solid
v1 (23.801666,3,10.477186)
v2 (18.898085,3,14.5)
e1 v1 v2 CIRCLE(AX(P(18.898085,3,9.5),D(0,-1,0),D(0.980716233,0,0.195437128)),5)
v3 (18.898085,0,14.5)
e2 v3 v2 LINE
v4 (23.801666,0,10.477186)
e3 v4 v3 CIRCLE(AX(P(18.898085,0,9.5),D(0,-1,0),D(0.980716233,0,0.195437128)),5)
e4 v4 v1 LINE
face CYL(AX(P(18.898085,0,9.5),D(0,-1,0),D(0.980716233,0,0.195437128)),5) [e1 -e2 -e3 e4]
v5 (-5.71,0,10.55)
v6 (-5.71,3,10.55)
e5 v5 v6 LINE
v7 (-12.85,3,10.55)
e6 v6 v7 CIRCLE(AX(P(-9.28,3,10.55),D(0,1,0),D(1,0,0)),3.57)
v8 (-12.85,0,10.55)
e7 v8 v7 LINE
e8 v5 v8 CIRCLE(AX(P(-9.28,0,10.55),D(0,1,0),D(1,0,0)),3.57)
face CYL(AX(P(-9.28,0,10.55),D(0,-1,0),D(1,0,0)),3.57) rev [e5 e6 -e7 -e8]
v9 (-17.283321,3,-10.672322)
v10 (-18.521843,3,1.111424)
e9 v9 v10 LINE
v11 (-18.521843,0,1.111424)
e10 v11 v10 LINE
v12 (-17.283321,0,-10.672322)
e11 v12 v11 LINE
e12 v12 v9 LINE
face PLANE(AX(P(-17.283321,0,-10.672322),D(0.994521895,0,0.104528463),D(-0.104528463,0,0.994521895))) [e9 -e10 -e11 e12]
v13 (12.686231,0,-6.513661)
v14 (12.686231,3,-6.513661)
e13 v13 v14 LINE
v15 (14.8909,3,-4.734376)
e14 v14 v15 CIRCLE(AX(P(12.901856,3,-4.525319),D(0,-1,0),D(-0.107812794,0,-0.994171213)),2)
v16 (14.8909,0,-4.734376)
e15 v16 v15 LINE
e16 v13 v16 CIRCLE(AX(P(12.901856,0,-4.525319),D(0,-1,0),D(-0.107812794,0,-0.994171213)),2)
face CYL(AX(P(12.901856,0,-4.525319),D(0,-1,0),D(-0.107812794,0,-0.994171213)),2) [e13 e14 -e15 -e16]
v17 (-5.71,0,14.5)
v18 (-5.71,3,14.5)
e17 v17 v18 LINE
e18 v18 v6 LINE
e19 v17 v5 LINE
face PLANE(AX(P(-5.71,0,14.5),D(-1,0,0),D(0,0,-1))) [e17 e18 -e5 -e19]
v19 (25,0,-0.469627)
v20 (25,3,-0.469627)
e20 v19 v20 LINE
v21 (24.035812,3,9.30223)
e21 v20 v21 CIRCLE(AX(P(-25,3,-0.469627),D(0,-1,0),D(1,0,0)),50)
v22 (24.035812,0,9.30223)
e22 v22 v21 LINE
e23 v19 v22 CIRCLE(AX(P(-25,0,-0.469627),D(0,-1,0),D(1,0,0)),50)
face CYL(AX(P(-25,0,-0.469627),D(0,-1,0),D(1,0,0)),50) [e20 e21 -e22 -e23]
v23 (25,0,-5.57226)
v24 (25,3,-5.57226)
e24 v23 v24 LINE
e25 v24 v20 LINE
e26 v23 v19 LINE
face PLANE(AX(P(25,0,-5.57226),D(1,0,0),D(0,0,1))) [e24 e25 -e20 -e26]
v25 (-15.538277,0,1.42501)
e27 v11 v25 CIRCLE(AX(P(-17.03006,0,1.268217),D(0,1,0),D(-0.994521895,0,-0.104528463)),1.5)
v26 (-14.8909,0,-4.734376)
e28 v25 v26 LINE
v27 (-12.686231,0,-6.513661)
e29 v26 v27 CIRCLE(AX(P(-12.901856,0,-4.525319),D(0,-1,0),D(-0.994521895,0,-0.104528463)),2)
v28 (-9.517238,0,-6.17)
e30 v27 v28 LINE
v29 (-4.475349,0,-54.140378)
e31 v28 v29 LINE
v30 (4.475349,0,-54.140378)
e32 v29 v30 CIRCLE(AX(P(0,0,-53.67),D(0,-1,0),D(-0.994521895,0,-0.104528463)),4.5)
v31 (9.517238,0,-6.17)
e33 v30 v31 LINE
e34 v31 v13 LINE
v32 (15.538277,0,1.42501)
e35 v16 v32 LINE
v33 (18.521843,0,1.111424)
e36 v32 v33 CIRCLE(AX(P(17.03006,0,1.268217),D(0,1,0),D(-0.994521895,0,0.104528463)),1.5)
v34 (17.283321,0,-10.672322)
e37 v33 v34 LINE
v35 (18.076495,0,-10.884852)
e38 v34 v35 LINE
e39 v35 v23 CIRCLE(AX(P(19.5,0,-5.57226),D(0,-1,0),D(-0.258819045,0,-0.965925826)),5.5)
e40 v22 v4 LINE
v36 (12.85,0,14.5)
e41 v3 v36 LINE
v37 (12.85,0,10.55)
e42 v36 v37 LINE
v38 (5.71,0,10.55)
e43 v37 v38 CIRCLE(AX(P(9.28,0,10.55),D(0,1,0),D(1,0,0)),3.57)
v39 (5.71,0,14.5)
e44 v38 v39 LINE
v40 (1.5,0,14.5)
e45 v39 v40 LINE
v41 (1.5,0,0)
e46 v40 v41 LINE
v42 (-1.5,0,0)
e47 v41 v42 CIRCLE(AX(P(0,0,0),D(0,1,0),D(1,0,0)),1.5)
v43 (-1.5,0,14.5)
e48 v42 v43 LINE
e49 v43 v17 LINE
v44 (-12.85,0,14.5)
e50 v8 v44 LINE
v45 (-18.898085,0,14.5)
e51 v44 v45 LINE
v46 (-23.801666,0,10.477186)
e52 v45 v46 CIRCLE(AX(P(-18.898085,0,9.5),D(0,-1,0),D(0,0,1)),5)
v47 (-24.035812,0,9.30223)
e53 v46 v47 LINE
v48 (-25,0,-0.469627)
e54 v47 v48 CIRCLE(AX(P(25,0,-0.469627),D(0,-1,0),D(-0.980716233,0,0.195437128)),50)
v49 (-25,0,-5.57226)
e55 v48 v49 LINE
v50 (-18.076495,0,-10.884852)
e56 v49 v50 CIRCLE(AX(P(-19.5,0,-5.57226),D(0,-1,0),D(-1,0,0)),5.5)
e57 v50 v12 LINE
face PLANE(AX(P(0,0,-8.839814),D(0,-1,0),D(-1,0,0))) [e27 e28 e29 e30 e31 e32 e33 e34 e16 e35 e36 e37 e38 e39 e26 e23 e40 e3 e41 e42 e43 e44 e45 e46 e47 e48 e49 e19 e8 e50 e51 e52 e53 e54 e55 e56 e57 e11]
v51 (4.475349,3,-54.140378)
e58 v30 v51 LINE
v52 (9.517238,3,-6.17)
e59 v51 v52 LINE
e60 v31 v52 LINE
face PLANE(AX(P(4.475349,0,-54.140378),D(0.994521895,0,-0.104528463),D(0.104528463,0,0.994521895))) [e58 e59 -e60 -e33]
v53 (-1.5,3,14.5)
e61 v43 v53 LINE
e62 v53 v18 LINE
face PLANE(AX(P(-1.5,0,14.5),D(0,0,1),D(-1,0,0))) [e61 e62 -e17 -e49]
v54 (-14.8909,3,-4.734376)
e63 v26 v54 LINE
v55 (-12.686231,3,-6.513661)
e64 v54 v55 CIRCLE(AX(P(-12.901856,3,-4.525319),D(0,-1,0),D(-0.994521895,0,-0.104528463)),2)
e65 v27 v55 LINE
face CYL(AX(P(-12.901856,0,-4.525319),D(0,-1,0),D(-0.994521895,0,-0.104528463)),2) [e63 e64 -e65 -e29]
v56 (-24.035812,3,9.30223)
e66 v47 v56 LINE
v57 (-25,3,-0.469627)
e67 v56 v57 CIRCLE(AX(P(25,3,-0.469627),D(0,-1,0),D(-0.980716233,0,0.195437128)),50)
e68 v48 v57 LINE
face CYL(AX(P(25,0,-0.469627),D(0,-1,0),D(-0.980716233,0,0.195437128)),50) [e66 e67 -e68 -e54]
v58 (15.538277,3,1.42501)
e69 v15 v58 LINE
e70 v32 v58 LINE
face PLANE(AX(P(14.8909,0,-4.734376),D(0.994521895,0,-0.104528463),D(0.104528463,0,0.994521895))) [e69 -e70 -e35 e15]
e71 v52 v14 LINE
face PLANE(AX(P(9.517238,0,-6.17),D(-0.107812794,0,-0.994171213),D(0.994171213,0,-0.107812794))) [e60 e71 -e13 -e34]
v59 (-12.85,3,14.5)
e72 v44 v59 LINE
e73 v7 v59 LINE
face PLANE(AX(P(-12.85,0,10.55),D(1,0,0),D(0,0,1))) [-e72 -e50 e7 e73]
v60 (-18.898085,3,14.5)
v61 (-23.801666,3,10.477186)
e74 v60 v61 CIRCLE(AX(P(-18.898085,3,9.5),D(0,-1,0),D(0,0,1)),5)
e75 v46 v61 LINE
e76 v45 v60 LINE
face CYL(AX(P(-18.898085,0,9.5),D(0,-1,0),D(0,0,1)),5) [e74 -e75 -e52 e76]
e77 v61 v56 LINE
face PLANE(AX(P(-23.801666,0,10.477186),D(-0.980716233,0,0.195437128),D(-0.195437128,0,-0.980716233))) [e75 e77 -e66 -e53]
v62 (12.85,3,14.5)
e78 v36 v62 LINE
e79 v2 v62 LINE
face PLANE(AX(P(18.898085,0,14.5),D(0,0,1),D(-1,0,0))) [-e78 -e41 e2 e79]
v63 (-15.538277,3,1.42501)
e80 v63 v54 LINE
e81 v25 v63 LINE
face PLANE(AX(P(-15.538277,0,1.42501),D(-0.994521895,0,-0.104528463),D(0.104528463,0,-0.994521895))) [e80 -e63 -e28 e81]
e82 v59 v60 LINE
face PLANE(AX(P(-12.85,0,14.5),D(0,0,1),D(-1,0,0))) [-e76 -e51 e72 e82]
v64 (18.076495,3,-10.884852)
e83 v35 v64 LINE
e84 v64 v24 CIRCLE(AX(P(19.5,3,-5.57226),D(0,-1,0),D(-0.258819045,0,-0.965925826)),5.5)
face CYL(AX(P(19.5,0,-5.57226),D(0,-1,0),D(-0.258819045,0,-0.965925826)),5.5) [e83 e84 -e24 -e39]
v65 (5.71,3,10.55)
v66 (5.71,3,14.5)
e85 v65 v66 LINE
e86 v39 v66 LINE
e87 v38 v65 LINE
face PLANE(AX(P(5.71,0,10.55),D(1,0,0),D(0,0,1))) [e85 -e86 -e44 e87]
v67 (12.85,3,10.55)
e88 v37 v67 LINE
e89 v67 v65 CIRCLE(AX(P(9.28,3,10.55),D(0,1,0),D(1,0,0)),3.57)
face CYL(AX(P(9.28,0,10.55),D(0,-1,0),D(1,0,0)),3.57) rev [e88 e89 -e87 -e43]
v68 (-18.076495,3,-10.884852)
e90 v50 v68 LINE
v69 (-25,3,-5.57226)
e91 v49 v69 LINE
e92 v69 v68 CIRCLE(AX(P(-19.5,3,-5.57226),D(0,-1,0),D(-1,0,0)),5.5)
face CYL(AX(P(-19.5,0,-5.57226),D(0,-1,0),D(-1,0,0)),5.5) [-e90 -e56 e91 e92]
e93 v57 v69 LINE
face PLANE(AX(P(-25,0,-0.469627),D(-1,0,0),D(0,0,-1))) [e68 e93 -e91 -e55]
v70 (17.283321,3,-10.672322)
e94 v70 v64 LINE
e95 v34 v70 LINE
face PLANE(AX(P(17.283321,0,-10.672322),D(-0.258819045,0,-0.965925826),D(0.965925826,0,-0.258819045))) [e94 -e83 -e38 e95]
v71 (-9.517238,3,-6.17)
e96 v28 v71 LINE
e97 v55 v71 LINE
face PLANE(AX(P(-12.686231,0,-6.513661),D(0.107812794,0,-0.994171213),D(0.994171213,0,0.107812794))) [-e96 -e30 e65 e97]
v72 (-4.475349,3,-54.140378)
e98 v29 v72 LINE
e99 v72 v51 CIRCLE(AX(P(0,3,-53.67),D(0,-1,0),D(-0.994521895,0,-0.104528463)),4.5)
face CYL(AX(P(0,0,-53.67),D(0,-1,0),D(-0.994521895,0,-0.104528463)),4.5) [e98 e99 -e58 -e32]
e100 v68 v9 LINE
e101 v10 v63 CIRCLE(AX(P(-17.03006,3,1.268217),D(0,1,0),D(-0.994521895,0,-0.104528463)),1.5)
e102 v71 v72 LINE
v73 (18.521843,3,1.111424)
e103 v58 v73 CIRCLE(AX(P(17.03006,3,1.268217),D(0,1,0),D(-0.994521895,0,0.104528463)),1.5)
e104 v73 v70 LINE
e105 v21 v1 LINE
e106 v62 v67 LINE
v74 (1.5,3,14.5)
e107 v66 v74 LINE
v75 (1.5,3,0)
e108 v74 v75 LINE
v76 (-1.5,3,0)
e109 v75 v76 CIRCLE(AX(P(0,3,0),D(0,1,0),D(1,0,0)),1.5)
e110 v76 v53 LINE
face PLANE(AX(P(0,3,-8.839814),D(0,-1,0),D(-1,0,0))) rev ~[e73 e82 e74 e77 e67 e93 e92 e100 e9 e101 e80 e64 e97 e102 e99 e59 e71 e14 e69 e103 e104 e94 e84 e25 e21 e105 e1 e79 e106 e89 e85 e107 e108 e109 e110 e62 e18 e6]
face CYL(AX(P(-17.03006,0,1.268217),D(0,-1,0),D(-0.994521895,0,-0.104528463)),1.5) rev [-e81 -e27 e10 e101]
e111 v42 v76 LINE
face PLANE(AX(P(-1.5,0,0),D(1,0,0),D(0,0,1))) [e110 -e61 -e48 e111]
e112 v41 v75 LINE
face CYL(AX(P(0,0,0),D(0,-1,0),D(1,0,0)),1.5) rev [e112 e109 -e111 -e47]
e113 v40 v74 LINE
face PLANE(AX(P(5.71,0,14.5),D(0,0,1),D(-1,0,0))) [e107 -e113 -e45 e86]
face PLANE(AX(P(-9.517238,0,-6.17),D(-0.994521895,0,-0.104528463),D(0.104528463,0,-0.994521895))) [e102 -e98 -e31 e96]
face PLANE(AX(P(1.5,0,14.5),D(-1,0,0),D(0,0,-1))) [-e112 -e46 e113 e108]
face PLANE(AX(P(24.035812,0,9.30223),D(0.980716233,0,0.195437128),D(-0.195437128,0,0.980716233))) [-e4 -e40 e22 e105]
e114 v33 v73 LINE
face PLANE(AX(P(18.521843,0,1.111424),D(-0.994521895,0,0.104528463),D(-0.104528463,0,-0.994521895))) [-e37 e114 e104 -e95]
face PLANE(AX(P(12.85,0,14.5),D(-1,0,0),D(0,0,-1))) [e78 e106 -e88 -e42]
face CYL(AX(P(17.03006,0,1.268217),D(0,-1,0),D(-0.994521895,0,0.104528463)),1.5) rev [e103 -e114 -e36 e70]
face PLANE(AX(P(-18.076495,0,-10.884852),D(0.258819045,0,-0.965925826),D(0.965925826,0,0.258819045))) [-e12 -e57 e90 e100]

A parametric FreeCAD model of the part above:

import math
import FreeCAD as App
import Part
import Sketcher
from FreeCAD import Vector
Q = App.Units.Quantity

doc = App.newDocument("Part")
params = doc.addObject("Spreadsheet::Sheet", "Params")
for row, (alias, value) in enumerate([
    ("sketch1_radius", "2 mm"),
    ("sketch1_radius2", "50 mm"),
    ("sketch1_radius3", "5 mm"),
    ("sketch1_radius4", "4.5 mm"),
    ("sketch1_radius5", "1.5 mm"),
    ("pad1_length", "3 mm"),
], start=1):
    params.set(f"A{row}", alias)
    params.set(f"B{row}", "=" + value)
    params.setAlias(f"B{row}", alias)

body = doc.addObject("PartDesign::Body", "Body")

sketch1 = body.newObject("Sketcher::SketchObject", "Sketch")
sketch1.AttachmentSupport = (doc.getObject("XZ_Plane"), [""])
sketch1.MapMode = "FlatFace"
sketch1.addGeometry([
    Part.LineSegment(Vector(9.5, -6.2, 0), Vector(4.5, -54.1, 0)),
    Part.ArcOfCircle(Part.Circle(Vector(0, -53.7, 0), Vector(0, 0, 1), 4.5), math.radians(-174), math.radians(-6)),
    Part.LineSegment(Vector(-4.5, -54.1, 0), Vector(-9.5, -6.2, 0)),
    Part.LineSegment(Vector(-9.5, -6.2, 0), Vector(-12.7, -6.5, 0)),
    Part.ArcOfCircle(Part.Circle(Vector(-12.9, -4.5, 0), Vector(0, 0, 1), 2), math.radians(-174), math.radians(-84)),
    Part.LineSegment(Vector(-14.9, -4.7, 0), Vector(-15.5, 1.4, 0)),
    Part.ArcOfCircle(Part.Circle(Vector(-17, 1.3, 0), Vector(0, 0, 1), 1.5), math.radians(6), math.radians(186)),
    Part.LineSegment(Vector(-18.5, 1.1, 0), Vector(-17.3, -10.7, 0)),
    Part.LineSegment(Vector(-17.3, -10.7, 0), Vector(-18.1, -10.9, 0)),
    Part.ArcOfCircle(Part.Circle(Vector(-19.5, -5.6, 0), Vector(0, 0, 1), 5.5), math.radians(180), math.radians(285)),
    Part.LineSegment(Vector(-25, -5.6, 0), Vector(-25, -0.5, 0)),
    Part.ArcOfCircle(Part.Circle(Vector(25, -0.5, 0), Vector(0, 0, 1), 50), math.radians(168.73), math.radians(180)),
    Part.LineSegment(Vector(-24, 9.3, 0), Vector(-23.8, 10.5, 0)),
    Part.ArcOfCircle(Part.Circle(Vector(-18.9, 9.5, 0), Vector(0, 0, 1), 5), math.radians(90), math.radians(169)),
    Part.LineSegment(Vector(-18.9, 14.5, 0), Vector(-12.8, 14.5, 0)),
    Part.LineSegment(Vector(-12.8, 14.5, 0), Vector(-12.8, 10.6, 0)),
    Part.ArcOfCircle(Part.Circle(Vector(-9.3, 10.6, 0), Vector(0, 0, 1), 3.6), math.radians(180), math.radians(360)),
    Part.LineSegment(Vector(-5.7, 10.6, 0), Vector(-5.7, 14.5, 0)),
    Part.LineSegment(Vector(-5.7, 14.5, 0), Vector(-1.5, 14.5, 0)),
    Part.LineSegment(Vector(-1.5, 14.5, 0), Vector(-1.5, 0, 0)),
    Part.ArcOfCircle(Part.Circle(Vector(0, 0, 0), Vector(0, 0, 1), 1.5), math.radians(180), math.radians(360)),
    Part.LineSegment(Vector(1.5, 0, 0), Vector(1.5, 14.5, 0)),
    Part.LineSegment(Vector(1.5, 14.5, 0), Vector(5.7, 14.5, 0)),
    Part.LineSegment(Vector(5.7, 14.5, 0), Vector(5.7, 10.6, 0)),
    Part.ArcOfCircle(Part.Circle(Vector(9.3, 10.6, 0), Vector(0, 0, 1), 3.6), math.radians(180), math.radians(360)),
    Part.LineSegment(Vector(12.8, 10.6, 0), Vector(12.8, 14.5, 0)),
    Part.LineSegment(Vector(12.8, 14.5, 0), Vector(18.9, 14.5, 0)),
    Part.ArcOfCircle(Part.Circle(Vector(18.9, 9.5, 0), Vector(0, 0, 1), 5), math.radians(11), math.radians(90)),
    Part.LineSegment(Vector(23.8, 10.5, 0), Vector(24, 9.3, 0)),
    Part.ArcOfCircle(Part.Circle(Vector(-25, -0.5, 0), Vector(0, 0, 1), 50), math.radians(0), math.radians(11.27)),
    Part.LineSegment(Vector(25, -0.5, 0), Vector(25, -5.6, 0)),
    Part.ArcOfCircle(Part.Circle(Vector(19.5, -5.6, 0), Vector(0, 0, 1), 5.5), math.radians(-105), math.radians(0)),
    Part.LineSegment(Vector(18.1, -10.9, 0), Vector(17.3, -10.7, 0)),
    Part.LineSegment(Vector(17.3, -10.7, 0), Vector(18.5, 1.1, 0)),
    Part.ArcOfCircle(Part.Circle(Vector(17, 1.3, 0), Vector(0, 0, 1), 1.5), math.radians(-6), math.radians(174)),
    Part.LineSegment(Vector(15.5, 1.4, 0), Vector(14.9, -4.7, 0)),
    Part.ArcOfCircle(Part.Circle(Vector(12.9, -4.5, 0), Vector(0, 0, 1), 2), math.radians(-96), math.radians(-6)),
    Part.LineSegment(Vector(12.7, -6.5, 0), Vector(9.5, -6.2, 0)),
], False)
sketch1.addConstraint([
    Sketcher.Constraint("Tangent", 0, 2, 1, 2),
    Sketcher.Constraint("Tangent", 1, 1, 2, 1),
    Sketcher.Constraint("Coincident", 2, 2, 3, 1),
    Sketcher.Constraint("Tangent", 3, 2, 4, 2),
    Sketcher.Constraint("Tangent", 4, 1, 5, 1),
    Sketcher.Constraint("Tangent", 5, 2, 6, 1),
    Sketcher.Constraint("Tangent", 6, 2, 7, 1),
    Sketcher.Constraint("Coincident", 7, 2, 8, 1),
    Sketcher.Constraint("Tangent", 8, 2, 9, 2),
    Sketcher.Constraint("Tangent", 9, 1, 10, 1),
    Sketcher.Constraint("Tangent", 10, 2, 11, 2),
    Sketcher.Constraint("Tangent", 11, 1, 12, 1),
    Sketcher.Constraint("Tangent", 12, 2, 13, 2),
    Sketcher.Constraint("Tangent", 13, 1, 14, 1),
    Sketcher.Constraint("Coincident", 14, 2, 15, 1),
    Sketcher.Constraint("Tangent", 15, 2, 16, 1),
    Sketcher.Constraint("Tangent", 16, 2, 17, 1),
    Sketcher.Constraint("Coincident", 17, 2, 18, 1),
    Sketcher.Constraint("Coincident", 18, 2, 19, 1),
    Sketcher.Constraint("Tangent", 19, 2, 20, 1),
    Sketcher.Constraint("Tangent", 20, 2, 21, 1),
    Sketcher.Constraint("Coincident", 21, 2, 22, 1),
    Sketcher.Constraint("Coincident", 22, 2, 23, 1),
    Sketcher.Constraint("Tangent", 23, 2, 24, 1),
    Sketcher.Constraint("Tangent", 24, 2, 25, 1),
    Sketcher.Constraint("Coincident", 25, 2, 26, 1),
    Sketcher.Constraint("Tangent", 26, 2, 27, 2),
    Sketcher.Constraint("Tangent", 27, 1, 28, 1),
    Sketcher.Constraint("Tangent", 28, 2, 29, 2),
    Sketcher.Constraint("Tangent", 29, 1, 30, 1),
    Sketcher.Constraint("Tangent", 30, 2, 31, 2),
    Sketcher.Constraint("Tangent", 31, 1, 32, 1),
    Sketcher.Constraint("Coincident", 32, 2, 33, 1),
    Sketcher.Constraint("Tangent", 33, 2, 34, 1),
    Sketcher.Constraint("Tangent", 34, 2, 35, 1),
    Sketcher.Constraint("Tangent", 35, 2, 36, 2),
    Sketcher.Constraint("Tangent", 36, 1, 37, 1),
    Sketcher.Constraint("Coincident", 37, 2, 0, 1),
    Sketcher.Constraint("Vertical", 10),
    Sketcher.Constraint("Horizontal", 14),
    Sketcher.Constraint("Vertical", 15),
    Sketcher.Constraint("Vertical", 17),
    Sketcher.Constraint("Horizontal", 18),
    Sketcher.Constraint("Vertical", 19),
    Sketcher.Constraint("Vertical", 21),
    Sketcher.Constraint("Horizontal", 22),
    Sketcher.Constraint("Vertical", 23),
    Sketcher.Constraint("Vertical", 25),
    Sketcher.Constraint("Horizontal", 26),
    Sketcher.Constraint("Vertical", 30),
    Sketcher.Constraint("Coincident", 20, 3, -1, 1),
    Sketcher.Constraint("Coincident", 10, 2, 29, 3),
    Sketcher.Constraint("Equal", 6, 20),
    Sketcher.Constraint("Equal", 16, 24),
    Sketcher.Constraint("Equal", 13, 27),
    Sketcher.Constraint("Equal", 11, 29),
    Sketcher.Constraint("Equal", 9, 31),
    Sketcher.Constraint("Equal", 20, 34),
    Sketcher.Constraint("Equal", 4, 36),
    Sketcher.Constraint("Symmetric", 16, 3, 24, 3, -2),
    Sketcher.Constraint("Symmetric", 13, 3, 27, 3, -2),
    Sketcher.Constraint("Symmetric", 9, 3, 31, 3, -2),
    Sketcher.Constraint("Symmetric", 6, 3, 34, 3, -2),
    Sketcher.Constraint("Symmetric", 4, 3, 36, 3, -2),
    Sketcher.Constraint("Symmetric", 0, 2, 1, 1, -2),
    Sketcher.Constraint("Symmetric", 7, 2, 32, 2, -2),
    Sketcher.Constraint("Parallel", 2, 5),
    Sketcher.Constraint("Parallel", 5, 7),
    Sketcher.Constraint("Horizontal", 14, 2, 17, 2),
    Sketcher.Constraint("Horizontal", 18, 2, 21, 2),
    Sketcher.Constraint("Horizontal", 3, 2, 36, 1),
    Sketcher.Constraint("Radius", 4, 2.0),
    Sketcher.Constraint("Radius", 11, 50.0),
    Sketcher.Constraint("Radius", 13, 5.0),
    Sketcher.Constraint("Radius", 1, 4.5),
    Sketcher.Constraint("Radius", 6, 1.5),
    Sketcher.Constraint("Radius", 9, 5.5),
    Sketcher.Constraint("Angle", 0, Q("-96 deg")),
    Sketcher.Constraint("Angle", 8, Q("-165 deg")),
    Sketcher.Constraint("Radius", 16, 3.57),
    Sketcher.Constraint("DistanceY", 19, 2, 19, 1, 14.5),
    Sketcher.Constraint("DistanceX", 18, 1, 18, 2, 4.21),
    Sketcher.Constraint("DistanceY", 15, 2, 15, 1, 3.95),
    Sketcher.Constraint("DistanceY", 1, 3, -1, 1, 53.67),
    Sketcher.Constraint("DistanceY", 2, 2, -1, 1, 6.17),
    Sketcher.Constraint("DistanceX", 4, 1, -1, 1, 14.8909),
    Sketcher.Constraint("DistanceY", 3, 2, 9, 3, 0.941401),
    Sketcher.Constraint("DistanceY", 4, 1, 6, 2, 5.8458),
    Sketcher.Constraint("Distance", 3, 3.187572),
    Sketcher.Constraint("Distance", 12, 1.198059),
    Sketcher.Constraint("DistanceX", 14, 1, 14, 2, 6.048085),
])
sketch1.setExpression("Constraints[71]", "Params.sketch1_radius")
sketch1.setExpression("Constraints[72]", "Params.sketch1_radius2")
sketch1.setExpression("Constraints[73]", "Params.sketch1_radius3")
sketch1.setExpression("Constraints[74]", "Params.sketch1_radius4")
sketch1.setExpression("Constraints[75]", "Params.sketch1_radius5")
pad1 = body.newObject("PartDesign::Pad", "Pad")
pad1.Profile = sketch1
pad1.setExpression("Length", "Params.pad1_length")
pad1.Reversed = True

doc.recompute()
